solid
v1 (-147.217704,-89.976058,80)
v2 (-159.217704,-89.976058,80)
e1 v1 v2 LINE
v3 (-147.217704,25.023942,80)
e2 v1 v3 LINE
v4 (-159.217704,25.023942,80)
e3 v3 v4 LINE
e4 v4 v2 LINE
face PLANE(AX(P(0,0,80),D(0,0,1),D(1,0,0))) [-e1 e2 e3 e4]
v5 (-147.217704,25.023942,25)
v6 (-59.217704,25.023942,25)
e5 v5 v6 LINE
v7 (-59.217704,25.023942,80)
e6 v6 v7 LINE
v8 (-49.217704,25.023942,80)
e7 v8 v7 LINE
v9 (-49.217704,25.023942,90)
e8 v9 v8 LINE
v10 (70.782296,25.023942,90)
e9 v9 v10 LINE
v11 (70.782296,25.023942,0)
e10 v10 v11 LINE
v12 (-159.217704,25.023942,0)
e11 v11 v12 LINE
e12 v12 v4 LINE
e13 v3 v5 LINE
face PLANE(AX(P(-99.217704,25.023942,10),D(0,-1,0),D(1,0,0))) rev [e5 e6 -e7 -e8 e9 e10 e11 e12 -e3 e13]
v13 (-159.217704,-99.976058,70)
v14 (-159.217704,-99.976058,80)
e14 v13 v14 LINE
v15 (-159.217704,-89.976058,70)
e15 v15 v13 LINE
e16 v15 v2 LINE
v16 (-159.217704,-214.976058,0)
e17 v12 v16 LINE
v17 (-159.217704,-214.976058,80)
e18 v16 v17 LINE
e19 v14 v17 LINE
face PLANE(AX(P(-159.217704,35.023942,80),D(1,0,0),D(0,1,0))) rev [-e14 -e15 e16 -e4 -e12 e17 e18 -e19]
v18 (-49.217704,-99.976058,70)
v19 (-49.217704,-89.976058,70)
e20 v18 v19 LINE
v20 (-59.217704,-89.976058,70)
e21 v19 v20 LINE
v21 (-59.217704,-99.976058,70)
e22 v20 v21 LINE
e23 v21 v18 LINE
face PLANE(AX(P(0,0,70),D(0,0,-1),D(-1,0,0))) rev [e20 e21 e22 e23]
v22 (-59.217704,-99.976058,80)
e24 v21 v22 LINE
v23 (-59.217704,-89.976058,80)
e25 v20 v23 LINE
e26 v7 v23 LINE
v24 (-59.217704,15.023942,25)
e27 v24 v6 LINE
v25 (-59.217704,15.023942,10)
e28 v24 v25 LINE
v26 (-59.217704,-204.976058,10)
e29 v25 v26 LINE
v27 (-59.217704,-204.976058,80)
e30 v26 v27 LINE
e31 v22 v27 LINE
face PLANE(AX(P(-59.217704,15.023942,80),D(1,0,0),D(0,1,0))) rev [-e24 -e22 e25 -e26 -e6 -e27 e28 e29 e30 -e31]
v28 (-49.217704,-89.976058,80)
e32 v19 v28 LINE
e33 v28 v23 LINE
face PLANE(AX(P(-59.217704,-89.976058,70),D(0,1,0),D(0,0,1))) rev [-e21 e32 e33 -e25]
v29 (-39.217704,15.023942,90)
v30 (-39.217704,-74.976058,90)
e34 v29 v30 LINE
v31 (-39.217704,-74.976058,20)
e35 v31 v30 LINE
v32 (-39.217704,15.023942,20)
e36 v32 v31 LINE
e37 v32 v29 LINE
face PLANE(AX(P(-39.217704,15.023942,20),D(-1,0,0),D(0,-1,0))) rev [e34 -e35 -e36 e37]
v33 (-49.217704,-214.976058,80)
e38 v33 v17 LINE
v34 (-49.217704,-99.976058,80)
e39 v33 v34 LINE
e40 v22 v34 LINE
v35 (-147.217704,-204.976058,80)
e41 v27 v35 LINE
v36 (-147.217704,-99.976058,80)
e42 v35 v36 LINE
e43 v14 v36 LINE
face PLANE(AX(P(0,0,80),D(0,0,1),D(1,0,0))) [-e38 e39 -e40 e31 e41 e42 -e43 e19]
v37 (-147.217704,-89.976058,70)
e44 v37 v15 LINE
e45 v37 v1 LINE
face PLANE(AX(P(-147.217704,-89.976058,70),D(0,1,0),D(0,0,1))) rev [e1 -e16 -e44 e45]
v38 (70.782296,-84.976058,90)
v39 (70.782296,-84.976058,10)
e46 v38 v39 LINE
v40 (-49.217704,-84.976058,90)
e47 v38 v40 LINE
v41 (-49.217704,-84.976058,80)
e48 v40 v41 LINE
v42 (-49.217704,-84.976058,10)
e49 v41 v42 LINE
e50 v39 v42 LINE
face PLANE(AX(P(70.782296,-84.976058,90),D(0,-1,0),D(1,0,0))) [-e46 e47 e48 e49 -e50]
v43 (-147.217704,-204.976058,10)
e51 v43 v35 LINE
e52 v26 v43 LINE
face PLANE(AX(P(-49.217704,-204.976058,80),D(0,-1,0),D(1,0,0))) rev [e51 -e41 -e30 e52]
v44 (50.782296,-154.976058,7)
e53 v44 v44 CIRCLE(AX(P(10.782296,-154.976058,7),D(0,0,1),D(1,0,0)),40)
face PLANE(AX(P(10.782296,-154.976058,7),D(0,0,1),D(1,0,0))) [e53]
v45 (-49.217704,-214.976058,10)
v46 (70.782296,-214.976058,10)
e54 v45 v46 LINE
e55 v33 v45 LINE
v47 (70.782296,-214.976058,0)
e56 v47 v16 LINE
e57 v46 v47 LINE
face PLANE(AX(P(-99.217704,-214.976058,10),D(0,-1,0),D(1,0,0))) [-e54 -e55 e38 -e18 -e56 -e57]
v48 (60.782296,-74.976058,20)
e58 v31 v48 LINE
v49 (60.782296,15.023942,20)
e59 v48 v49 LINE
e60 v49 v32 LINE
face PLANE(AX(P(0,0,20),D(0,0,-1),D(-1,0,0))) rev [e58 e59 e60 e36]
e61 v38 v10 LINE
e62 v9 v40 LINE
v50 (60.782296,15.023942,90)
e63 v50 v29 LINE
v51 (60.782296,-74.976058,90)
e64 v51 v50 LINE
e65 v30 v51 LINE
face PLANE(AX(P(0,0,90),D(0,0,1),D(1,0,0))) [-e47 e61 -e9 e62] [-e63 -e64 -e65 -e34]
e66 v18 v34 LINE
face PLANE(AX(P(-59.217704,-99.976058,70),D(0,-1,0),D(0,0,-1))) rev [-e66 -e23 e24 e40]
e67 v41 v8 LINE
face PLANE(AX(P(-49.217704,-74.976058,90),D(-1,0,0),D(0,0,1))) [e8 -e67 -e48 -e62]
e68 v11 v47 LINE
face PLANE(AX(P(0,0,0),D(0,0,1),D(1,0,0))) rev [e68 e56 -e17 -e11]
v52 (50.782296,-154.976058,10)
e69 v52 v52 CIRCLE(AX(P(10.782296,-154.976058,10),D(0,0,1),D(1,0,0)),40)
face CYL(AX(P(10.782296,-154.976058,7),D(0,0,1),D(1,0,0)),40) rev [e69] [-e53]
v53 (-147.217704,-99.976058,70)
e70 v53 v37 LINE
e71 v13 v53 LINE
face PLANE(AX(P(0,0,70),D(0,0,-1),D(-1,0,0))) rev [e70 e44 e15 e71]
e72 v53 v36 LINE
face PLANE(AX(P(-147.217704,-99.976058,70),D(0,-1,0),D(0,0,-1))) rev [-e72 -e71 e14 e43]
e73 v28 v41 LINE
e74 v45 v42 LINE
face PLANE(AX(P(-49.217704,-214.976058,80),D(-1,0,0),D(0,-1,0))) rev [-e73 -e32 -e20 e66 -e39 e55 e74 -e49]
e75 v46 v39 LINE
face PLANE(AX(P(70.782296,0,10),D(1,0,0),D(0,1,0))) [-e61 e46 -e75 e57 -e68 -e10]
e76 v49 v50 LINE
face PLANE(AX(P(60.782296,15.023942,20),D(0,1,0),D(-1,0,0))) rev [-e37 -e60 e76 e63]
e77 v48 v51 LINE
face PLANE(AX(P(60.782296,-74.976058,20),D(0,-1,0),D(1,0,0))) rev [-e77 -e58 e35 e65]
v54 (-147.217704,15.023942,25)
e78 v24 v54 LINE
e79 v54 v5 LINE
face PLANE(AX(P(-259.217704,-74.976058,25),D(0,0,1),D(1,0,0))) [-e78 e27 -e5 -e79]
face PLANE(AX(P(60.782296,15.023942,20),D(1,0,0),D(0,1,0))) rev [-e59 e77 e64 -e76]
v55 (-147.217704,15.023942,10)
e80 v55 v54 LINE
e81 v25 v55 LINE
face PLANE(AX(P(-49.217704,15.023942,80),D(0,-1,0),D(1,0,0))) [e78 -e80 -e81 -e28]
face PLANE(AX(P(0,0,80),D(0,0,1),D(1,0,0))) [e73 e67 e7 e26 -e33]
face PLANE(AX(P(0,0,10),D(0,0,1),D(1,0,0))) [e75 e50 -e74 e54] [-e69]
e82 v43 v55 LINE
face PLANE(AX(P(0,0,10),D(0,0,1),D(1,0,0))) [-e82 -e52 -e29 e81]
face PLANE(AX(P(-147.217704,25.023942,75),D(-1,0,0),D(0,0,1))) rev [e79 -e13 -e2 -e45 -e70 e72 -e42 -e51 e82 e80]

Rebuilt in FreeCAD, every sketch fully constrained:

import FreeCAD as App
import Part
import Sketcher

V = App.Vector


def add_polygon(sketch, points):
    """Adds a closed chain of lines whose ends are joined by coincident constraints."""
    first, n = sketch.GeometryCount, len(points)
    for a, b in zip(points, points[1:] + points[:1]):
        sketch.addGeometry(Part.LineSegment(App.Vector(*a, 0), App.Vector(*b, 0)), False)
    for i in range(n):
        sketch.addConstraint(Sketcher.Constraint("Coincident", first + i, 2, first + (i + 1) % n, 1))

doc = App.newDocument("Part")
params = doc.addObject("Spreadsheet::Sheet", "Params")
for row, (alias, value) in enumerate([
    ("sketch1_width", "340 mm"),
    ("sketch1_height", "240 mm"),
    ("pad1_length", "10 mm"),
    ("sketch2_width", "220 mm"),
    ("sketch2_width2", "210 mm"),
    ("sketch2_height", "240 mm"),
    ("pad2_length", "70 mm"),
    ("sketch3_diameter", "80 mm"),
    ("pocket1_length", "3 mm"),
    ("sketch4_width", "200 mm"),
    ("sketch4_height", "45 mm"),
    ("pocket2_length", "100 mm"),
    ("sketch5_width", "120 mm"),
    ("sketch5_height", "110 mm"),
    ("pad3_length", "80 mm"),
    ("sketch6_width", "110 mm"),
    ("sketch6_height", "80 mm"),
    ("pocket3_length", "250 mm"),
    ("sketch7_width", "12 mm"),
    ("sketch7_height", "10 mm"),
    ("pad4_length", "50 mm"),
    ("sketch8_width", "100 mm"),
    ("sketch8_height", "90 mm"),
    ("pocket4_length", "70 mm"),
    ("sketch9_width", "12 mm"),
    ("sketch9_height", "70 mm"),
    ("pad5_length", "220 mm"),
    ("sketch10_width", "10 mm"),
    ("sketch10_width2", "12 mm"),
    ("pocket5_length", "10 mm"),
    ("sketch11_width", "88 mm"),
    ("sketch11_height", "10 mm"),
    ("pocket6_length", "10 mm"),
], start=1):
    params.set(f"A{row}", alias)
    params.set(f"B{row}", "=" + value)
    params.setAlias(f"B{row}", alias)

body = doc.addObject("PartDesign::Body", "Body")

# Sketch on XY plane
sketch1 = doc.addObject("Sketcher::SketchObject", "Sketch")
body.addObject(sketch1)
sketch1.AttachmentSupport = (doc.XY_Plane, [""])
sketch1.MapMode = "FlatFace"
add_polygon(sketch1, [(71, 25), (-269, 25), (-269, -215), (71, -215)])  # lines 0-3
sketch1.addConstraint([
    Sketcher.Constraint("Horizontal", 0),
    Sketcher.Constraint("Vertical", 1),
    Sketcher.Constraint("Horizontal", 2),
    Sketcher.Constraint("Vertical", 3),
    Sketcher.Constraint("DistanceX", 0, 2, 0, 1, 340.0),
    Sketcher.Constraint("DistanceY", 1, 2, 1, 1, 240.0),
    Sketcher.Constraint("DistanceX", 0, 2, -1, 1, 269.217704),
    Sketcher.Constraint("DistanceY", -1, 1, 0, 2, 25.023942),
])
sketch1.setExpression("Constraints[8]", "Params.sketch1_width")
sketch1.setExpression("Constraints[9]", "Params.sketch1_height")
pad1 = doc.addObject("PartDesign::Pad", "Pad")
body.addObject(pad1)
pad1.Profile = sketch1
pad1.setExpression("Length", "Params.pad1_length")

# Sketch on XY plane
sketch2 = doc.addObject("Sketcher::SketchObject", "Sketch001")
body.addObject(sketch2)
sketch2.AttachmentSupport = (doc.XY_Plane, [""])
sketch2.MapMode = "FlatFace"
sketch2.AttachmentOffset = App.Placement(V(0, 0, 10), App.Rotation())
add_polygon(sketch2, [(-49, -215), (-49, 25), (-269, 25), (-269, 15), (-59, 15), (-59, -205), (-269, -205), (-269, -215)])  # lines 0-7
sketch2.addConstraint([
    Sketcher.Constraint("Vertical", 0),
    Sketcher.Constraint("Horizontal", 1),
    Sketcher.Constraint("Vertical", 2),
    Sketcher.Constraint("Horizontal", 3),
    Sketcher.Constraint("Vertical", 4),
    Sketcher.Constraint("Horizontal", 5),
    Sketcher.Constraint("Vertical", 6),
    Sketcher.Constraint("Horizontal", 7),
    Sketcher.Constraint("Vertical", 2, 2, 5, 2),
    Sketcher.Constraint("Equal", 7, 4),
    Sketcher.Constraint("Equal", 2, 6),
    Sketcher.Constraint("DistanceX", 1, 2, 1, 1, 220.0),
    Sketcher.Constraint("DistanceX", 3, 1, 3, 2, 210.0),
    Sketcher.Constraint("DistanceY", 0, 1, 0, 2, 240.0),
    Sketcher.Constraint("DistanceX", 0, 2, -1, 1, 49.217704),
    Sketcher.Constraint("DistanceY", -1, 1, 0, 2, 25.023942),
])
sketch2.setExpression("Constraints[19]", "Params.sketch2_width")
sketch2.setExpression("Constraints[20]", "Params.sketch2_width2")
sketch2.setExpression("Constraints[21]", "Params.sketch2_height")
pad2 = doc.addObject("PartDesign::Pad", "Pad001")
body.addObject(pad2)
pad2.Profile = sketch2
pad2.setExpression("Length", "Params.pad2_length")

# Sketch on XY plane
sketch3 = doc.addObject("Sketcher::SketchObject", "Sketch002")
body.addObject(sketch3)
sketch3.AttachmentSupport = (doc.XY_Plane, [""])
sketch3.MapMode = "FlatFace"
sketch3.AttachmentOffset = App.Placement(V(0, 0, 10), App.Rotation())
sketch3.addGeometry(Part.Circle(V(11, -155, 0), V(0, 0, 1), 40), False)
sketch3.addConstraint([
    Sketcher.Constraint("Diameter", 0, 80.0),
    Sketcher.Constraint("DistanceX", -1, 1, 0, 3, 10.782296),
    Sketcher.Constraint("DistanceY", 0, 3, -1, 1, 154.976058),
])
sketch3.setExpression("Constraints[0]", "Params.sketch3_diameter")
pocket1 = doc.addObject("PartDesign::Pocket", "Pocket")
body.addObject(pocket1)
pocket1.Profile = sketch3
pocket1.setExpression("Length", "Params.pocket1_length")

# Sketch on XZ plane
sketch4 = doc.addObject("Sketcher::SketchObject", "Sketch003")
body.addObject(sketch4)
sketch4.AttachmentSupport = (doc.XZ_Plane, [""])
sketch4.MapMode = "FlatFace"
sketch4.AttachmentOffset = App.Placement(V(0, 0, -25.023942), App.Rotation())
add_polygon(sketch4, [(-259, 25), (-259, 70), (-59, 70), (-59, 25)])  # lines 0-3
sketch4.addConstraint([
    Sketcher.Constraint("Vertical", 0),
    Sketcher.Constraint("Horizontal", 1),
    Sketcher.Constraint("Vertical", 2),
    Sketcher.Constraint("Horizontal", 3),
    Sketcher.Constraint("DistanceX", 1, 1, 1, 2, 200.0),
    Sketcher.Constraint("DistanceY", 0, 1, 0, 2, 45.0),
    Sketcher.Constraint("DistanceY", -1, 1, 0, 2, 70.0),
    Sketcher.Constraint("DistanceX", 0, 2, -1, 1, 259.217704),
])
sketch4.setExpression("Constraints[8]", "Params.sketch4_width")
sketch4.setExpression("Constraints[9]", "Params.sketch4_height")
pocket2 = doc.addObject("PartDesign::Pocket", "Pocket001")
body.addObject(pocket2)
pocket2.Profile = sketch4
pocket2.setExpression("Length", "Params.pocket2_length")
pocket2.Reversed = True

# Sketch on XY plane
sketch5 = doc.addObject("Sketcher::SketchObject", "Sketch004")
body.addObject(sketch5)
sketch5.AttachmentSupport = (doc.XY_Plane, [""])
sketch5.MapMode = "FlatFace"
sketch5.AttachmentOffset = App.Placement(V(0, 0, 10), App.Rotation())
add_polygon(sketch5, [(71, -85), (71, 25), (-49, 25), (-49, -85)])  # lines 0-3
sketch5.addConstraint([
    Sketcher.Constraint("Vertical", 0),
    Sketcher.Constraint("Horizontal", 1),
    Sketcher.Constraint("Vertical", 2),
    Sketcher.Constraint("Horizontal", 3),
    Sketcher.Constraint("DistanceX", 1, 2, 1, 1, 120.0),
    Sketcher.Constraint("DistanceY", 0, 1, 0, 2, 110.0),
    Sketcher.Constraint("DistanceX", -1, 1, 0, 2, 70.782296),
    Sketcher.Constraint("DistanceY", -1, 1, 0, 2, 25.023942),
])
sketch5.setExpression("Constraints[8]", "Params.sketch5_width")
sketch5.setExpression("Constraints[9]", "Params.sketch5_height")
pad3 = doc.addObject("PartDesign::Pad", "Pad002")
body.addObject(pad3)
pad3.Profile = sketch5
pad3.setExpression("Length", "Params.pad3_length")

# Sketch on XZ plane
sketch6 = doc.addObject("Sketcher::SketchObject", "Sketch005")
body.addObject(sketch6)
sketch6.AttachmentSupport = (doc.XZ_Plane, [""])
sketch6.MapMode = "FlatFace"
sketch6.AttachmentOffset = App.Placement(V(0, 0, 214.976058), App.Rotation())
add_polygon(sketch6, [(-269, 80), (-269, 0), (-159, 0), (-159, 80)])  # lines 0-3
sketch6.addConstraint([
    Sketcher.Constraint("Vertical", 0),
    Sketcher.Constraint("Horizontal", 1),
    Sketcher.Constraint("Vertical", 2),
    Sketcher.Constraint("Horizontal", 3),
    Sketcher.Constraint("PointOnObject", 0, 2, -1),
    Sketcher.Constraint("DistanceX", 1, 1, 1, 2, 110.0),
    Sketcher.Constraint("DistanceY", 0, 2, 0, 1, 80.0),
    Sketcher.Constraint("DistanceX", 0, 2, -1, 1, 269.217704),
])
sketch6.setExpression("Constraints[9]", "Params.sketch6_width")
sketch6.setExpression("Constraints[10]", "Params.sketch6_height")
pocket3 = doc.addObject("PartDesign::Pocket", "Pocket002")
body.addObject(pocket3)
pocket3.Profile = sketch6
pocket3.setExpression("Length", "Params.pocket3_length")

# Sketch on XY plane
sketch7 = doc.addObject("Sketcher::SketchObject", "Sketch006")
body.addObject(sketch7)
sketch7.AttachmentSupport = (doc.XY_Plane, [""])
sketch7.MapMode = "FlatFace"
sketch7.AttachmentOffset = App.Placement(V(0, 0, 25), App.Rotation())
add_polygon(sketch7, [(-159, 25), (-159, 15), (-147, 15), (-147, 25)])  # lines 0-3
sketch7.addConstraint([
    Sketcher.Constraint("Vertical", 0),
    Sketcher.Constraint("Horizontal", 1),
    Sketcher.Constraint("Vertical", 2),
    Sketcher.Constraint("Horizontal", 3),
    Sketcher.Constraint("DistanceX", 1, 1, 1, 2, 12.0),
    Sketcher.Constraint("DistanceY", 0, 2, 0, 1, 10.0),
    Sketcher.Constraint("DistanceX", 0, 2, -1, 1, 159.217704),
    Sketcher.Constraint("DistanceY", -1, 1, 0, 2, 15.023942),
])
sketch7.setExpression("Constraints[8]", "Params.sketch7_width")
sketch7.setExpression("Constraints[9]", "Params.sketch7_height")
pad4 = doc.addObject("PartDesign::Pad", "Pad003")
body.addObject(pad4)
pad4.Profile = sketch7
pad4.setExpression("Length", "Params.pad4_length")

# Sketch on XY plane
sketch8 = doc.addObject("Sketcher::SketchObject", "Sketch007")
body.addObject(sketch8)
sketch8.AttachmentSupport = (doc.XY_Plane, [""])
sketch8.MapMode = "FlatFace"
sketch8.AttachmentOffset = App.Placement(V(0, 0, 90), App.Rotation())
add_polygon(sketch8, [(-39, 15), (-39, -75), (61, -75), (61, 15)])  # lines 0-3
sketch8.addConstraint([
    Sketcher.Constraint("Vertical", 0),
    Sketcher.Constraint("Horizontal", 1),
    Sketcher.Constraint("Vertical", 2),
    Sketcher.Constraint("Horizontal", 3),
    Sketcher.Constraint("DistanceX", 1, 1, 1, 2, 100.0),
    Sketcher.Constraint("DistanceY", 0, 2, 0, 1, 90.0),
    Sketcher.Constraint("DistanceX", 0, 2, -1, 1, 39.217704),
    Sketcher.Constraint("DistanceY", 0, 2, -1, 1, 74.976058),
])
sketch8.setExpression("Constraints[8]", "Params.sketch8_width")
sketch8.setExpression("Constraints[9]", "Params.sketch8_height")
pocket4 = doc.addObject("PartDesign::Pocket", "Pocket003")
body.addObject(pocket4)
pocket4.Profile = sketch8
pocket4.setExpression("Length", "Params.pocket4_length")

# Sketch on XZ plane
sketch9 = doc.addObject("Sketcher::SketchObject", "Sketch008")
body.addObject(sketch9)
sketch9.AttachmentSupport = (doc.XZ_Plane, [""])
sketch9.MapMode = "FlatFace"
sketch9.AttachmentOffset = App.Placement(V(0, 0, -15.023942), App.Rotation())
add_polygon(sketch9, [(-159, 80), (-159, 10), (-147, 10), (-147, 80)])  # lines 0-3
sketch9.addConstraint([
    Sketcher.Constraint("Vertical", 0),
    Sketcher.Constraint("Horizontal", 1),
    Sketcher.Constraint("Vertical", 2),
    Sketcher.Constraint("Horizontal", 3),
    Sketcher.Constraint("DistanceX", 1, 1, 1, 2, 12.0),
    Sketcher.Constraint("DistanceY", 0, 2, 0, 1, 70.0),
    Sketcher.Constraint("DistanceY", -1, 1, 0, 2, 10.0),
    Sketcher.Constraint("DistanceX", 0, 2, -1, 1, 159.217704),
])
sketch9.setExpression("Constraints[8]", "Params.sketch9_width")
sketch9.setExpression("Constraints[9]", "Params.sketch9_height")
pad5 = doc.addObject("PartDesign::Pad", "Pad004")
body.addObject(pad5)
pad5.Profile = sketch9
pad5.setExpression("Length", "Params.pad5_length")

# Sketch on XY plane
sketch10 = doc.addObject("Sketcher::SketchObject", "Sketch009")
body.addObject(sketch10)
sketch10.AttachmentSupport = (doc.XY_Plane, [""])
sketch10.MapMode = "FlatFace"
sketch10.AttachmentOffset = App.Placement(V(0, 0, 80), App.Rotation())
add_polygon(sketch10, [(-59, -90), (-59, -100), (-49, -100), (-49, -90)])  # lines 0-3
add_polygon(sketch10, [(-159, -90), (-159, -100), (-147, -100), (-147, -90)])  # lines 4-7
sketch10.addConstraint([
    Sketcher.Constraint("Vertical", 0),
    Sketcher.Constraint("Horizontal", 1),
    Sketcher.Constraint("Vertical", 2),
    Sketcher.Constraint("Horizontal", 3),
    Sketcher.Constraint("Vertical", 4),
    Sketcher.Constraint("Horizontal", 5),
    Sketcher.Constraint("Vertical", 6),
    Sketcher.Constraint("Horizontal", 7),
    Sketcher.Constraint("Horizontal", 1, 2, 4, 2),
    Sketcher.Constraint("Horizontal", 3, 2, 6, 2),
    Sketcher.Constraint("Equal", 3, 0),
    Sketcher.Constraint("DistanceX", 1, 1, 1, 2, 10.0),
    Sketcher.Constraint("DistanceX", 5, 1, 5, 2, 12.0),
    Sketcher.Constraint("DistanceX", 4, 2, 0, 2, 100.0),
    Sketcher.Constraint("DistanceX", 0, 2, -1, 1, 59.217704),
    Sketcher.Constraint("DistanceY", 0, 2, -1, 1, 99.976058),
])
sketch10.setExpression("Constraints[19]", "Params.sketch10_width")
sketch10.setExpression("Constraints[20]", "Params.sketch10_width2")
pocket5 = doc.addObject("PartDesign::Pocket", "Pocket004")
body.addObject(pocket5)
pocket5.Profile = sketch10
pocket5.setExpression("Length", "Params.pocket5_length")

# Sketch on XZ plane
sketch11 = doc.addObject("Sketcher::SketchObject", "Sketch010")
body.addObject(sketch11)
sketch11.AttachmentSupport = (doc.XZ_Plane, [""])
sketch11.MapMode = "FlatFace"
sketch11.AttachmentOffset = App.Placement(V(0, 0, -25.023942), App.Rotation())
add_polygon(sketch11, [(-147, 70), (-147, 80), (-59, 80), (-59, 70)])  # lines 0-3
sketch11.addConstraint([
    Sketcher.Constraint("Vertical", 0),
    Sketcher.Constraint("Horizontal", 1),
    Sketcher.Constraint("Vertical", 2),
    Sketcher.Constraint("Horizontal", 3),
    Sketcher.Constraint("DistanceX", 1, 1, 1, 2, 88.0),
    Sketcher.Constraint("DistanceY", 0, 1, 0, 2, 10.0),
    Sketcher.Constraint("DistanceY", -1, 1, 0, 2, 80.0),
    Sketcher.Constraint("DistanceX", 0, 2, -1, 1, 147.217704),
])
sketch11.setExpression("Constraints[8]", "Params.sketch11_width")
sketch11.setExpression("Constraints[9]", "Params.sketch11_height")
pocket6 = doc.addObject("PartDesign::Pocket", "Pocket005")
body.addObject(pocket6)
pocket6.Profile = sketch11
pocket6.setExpression("Length", "Params.pocket6_length")
pocket6.Reversed = True

doc.recompute()
